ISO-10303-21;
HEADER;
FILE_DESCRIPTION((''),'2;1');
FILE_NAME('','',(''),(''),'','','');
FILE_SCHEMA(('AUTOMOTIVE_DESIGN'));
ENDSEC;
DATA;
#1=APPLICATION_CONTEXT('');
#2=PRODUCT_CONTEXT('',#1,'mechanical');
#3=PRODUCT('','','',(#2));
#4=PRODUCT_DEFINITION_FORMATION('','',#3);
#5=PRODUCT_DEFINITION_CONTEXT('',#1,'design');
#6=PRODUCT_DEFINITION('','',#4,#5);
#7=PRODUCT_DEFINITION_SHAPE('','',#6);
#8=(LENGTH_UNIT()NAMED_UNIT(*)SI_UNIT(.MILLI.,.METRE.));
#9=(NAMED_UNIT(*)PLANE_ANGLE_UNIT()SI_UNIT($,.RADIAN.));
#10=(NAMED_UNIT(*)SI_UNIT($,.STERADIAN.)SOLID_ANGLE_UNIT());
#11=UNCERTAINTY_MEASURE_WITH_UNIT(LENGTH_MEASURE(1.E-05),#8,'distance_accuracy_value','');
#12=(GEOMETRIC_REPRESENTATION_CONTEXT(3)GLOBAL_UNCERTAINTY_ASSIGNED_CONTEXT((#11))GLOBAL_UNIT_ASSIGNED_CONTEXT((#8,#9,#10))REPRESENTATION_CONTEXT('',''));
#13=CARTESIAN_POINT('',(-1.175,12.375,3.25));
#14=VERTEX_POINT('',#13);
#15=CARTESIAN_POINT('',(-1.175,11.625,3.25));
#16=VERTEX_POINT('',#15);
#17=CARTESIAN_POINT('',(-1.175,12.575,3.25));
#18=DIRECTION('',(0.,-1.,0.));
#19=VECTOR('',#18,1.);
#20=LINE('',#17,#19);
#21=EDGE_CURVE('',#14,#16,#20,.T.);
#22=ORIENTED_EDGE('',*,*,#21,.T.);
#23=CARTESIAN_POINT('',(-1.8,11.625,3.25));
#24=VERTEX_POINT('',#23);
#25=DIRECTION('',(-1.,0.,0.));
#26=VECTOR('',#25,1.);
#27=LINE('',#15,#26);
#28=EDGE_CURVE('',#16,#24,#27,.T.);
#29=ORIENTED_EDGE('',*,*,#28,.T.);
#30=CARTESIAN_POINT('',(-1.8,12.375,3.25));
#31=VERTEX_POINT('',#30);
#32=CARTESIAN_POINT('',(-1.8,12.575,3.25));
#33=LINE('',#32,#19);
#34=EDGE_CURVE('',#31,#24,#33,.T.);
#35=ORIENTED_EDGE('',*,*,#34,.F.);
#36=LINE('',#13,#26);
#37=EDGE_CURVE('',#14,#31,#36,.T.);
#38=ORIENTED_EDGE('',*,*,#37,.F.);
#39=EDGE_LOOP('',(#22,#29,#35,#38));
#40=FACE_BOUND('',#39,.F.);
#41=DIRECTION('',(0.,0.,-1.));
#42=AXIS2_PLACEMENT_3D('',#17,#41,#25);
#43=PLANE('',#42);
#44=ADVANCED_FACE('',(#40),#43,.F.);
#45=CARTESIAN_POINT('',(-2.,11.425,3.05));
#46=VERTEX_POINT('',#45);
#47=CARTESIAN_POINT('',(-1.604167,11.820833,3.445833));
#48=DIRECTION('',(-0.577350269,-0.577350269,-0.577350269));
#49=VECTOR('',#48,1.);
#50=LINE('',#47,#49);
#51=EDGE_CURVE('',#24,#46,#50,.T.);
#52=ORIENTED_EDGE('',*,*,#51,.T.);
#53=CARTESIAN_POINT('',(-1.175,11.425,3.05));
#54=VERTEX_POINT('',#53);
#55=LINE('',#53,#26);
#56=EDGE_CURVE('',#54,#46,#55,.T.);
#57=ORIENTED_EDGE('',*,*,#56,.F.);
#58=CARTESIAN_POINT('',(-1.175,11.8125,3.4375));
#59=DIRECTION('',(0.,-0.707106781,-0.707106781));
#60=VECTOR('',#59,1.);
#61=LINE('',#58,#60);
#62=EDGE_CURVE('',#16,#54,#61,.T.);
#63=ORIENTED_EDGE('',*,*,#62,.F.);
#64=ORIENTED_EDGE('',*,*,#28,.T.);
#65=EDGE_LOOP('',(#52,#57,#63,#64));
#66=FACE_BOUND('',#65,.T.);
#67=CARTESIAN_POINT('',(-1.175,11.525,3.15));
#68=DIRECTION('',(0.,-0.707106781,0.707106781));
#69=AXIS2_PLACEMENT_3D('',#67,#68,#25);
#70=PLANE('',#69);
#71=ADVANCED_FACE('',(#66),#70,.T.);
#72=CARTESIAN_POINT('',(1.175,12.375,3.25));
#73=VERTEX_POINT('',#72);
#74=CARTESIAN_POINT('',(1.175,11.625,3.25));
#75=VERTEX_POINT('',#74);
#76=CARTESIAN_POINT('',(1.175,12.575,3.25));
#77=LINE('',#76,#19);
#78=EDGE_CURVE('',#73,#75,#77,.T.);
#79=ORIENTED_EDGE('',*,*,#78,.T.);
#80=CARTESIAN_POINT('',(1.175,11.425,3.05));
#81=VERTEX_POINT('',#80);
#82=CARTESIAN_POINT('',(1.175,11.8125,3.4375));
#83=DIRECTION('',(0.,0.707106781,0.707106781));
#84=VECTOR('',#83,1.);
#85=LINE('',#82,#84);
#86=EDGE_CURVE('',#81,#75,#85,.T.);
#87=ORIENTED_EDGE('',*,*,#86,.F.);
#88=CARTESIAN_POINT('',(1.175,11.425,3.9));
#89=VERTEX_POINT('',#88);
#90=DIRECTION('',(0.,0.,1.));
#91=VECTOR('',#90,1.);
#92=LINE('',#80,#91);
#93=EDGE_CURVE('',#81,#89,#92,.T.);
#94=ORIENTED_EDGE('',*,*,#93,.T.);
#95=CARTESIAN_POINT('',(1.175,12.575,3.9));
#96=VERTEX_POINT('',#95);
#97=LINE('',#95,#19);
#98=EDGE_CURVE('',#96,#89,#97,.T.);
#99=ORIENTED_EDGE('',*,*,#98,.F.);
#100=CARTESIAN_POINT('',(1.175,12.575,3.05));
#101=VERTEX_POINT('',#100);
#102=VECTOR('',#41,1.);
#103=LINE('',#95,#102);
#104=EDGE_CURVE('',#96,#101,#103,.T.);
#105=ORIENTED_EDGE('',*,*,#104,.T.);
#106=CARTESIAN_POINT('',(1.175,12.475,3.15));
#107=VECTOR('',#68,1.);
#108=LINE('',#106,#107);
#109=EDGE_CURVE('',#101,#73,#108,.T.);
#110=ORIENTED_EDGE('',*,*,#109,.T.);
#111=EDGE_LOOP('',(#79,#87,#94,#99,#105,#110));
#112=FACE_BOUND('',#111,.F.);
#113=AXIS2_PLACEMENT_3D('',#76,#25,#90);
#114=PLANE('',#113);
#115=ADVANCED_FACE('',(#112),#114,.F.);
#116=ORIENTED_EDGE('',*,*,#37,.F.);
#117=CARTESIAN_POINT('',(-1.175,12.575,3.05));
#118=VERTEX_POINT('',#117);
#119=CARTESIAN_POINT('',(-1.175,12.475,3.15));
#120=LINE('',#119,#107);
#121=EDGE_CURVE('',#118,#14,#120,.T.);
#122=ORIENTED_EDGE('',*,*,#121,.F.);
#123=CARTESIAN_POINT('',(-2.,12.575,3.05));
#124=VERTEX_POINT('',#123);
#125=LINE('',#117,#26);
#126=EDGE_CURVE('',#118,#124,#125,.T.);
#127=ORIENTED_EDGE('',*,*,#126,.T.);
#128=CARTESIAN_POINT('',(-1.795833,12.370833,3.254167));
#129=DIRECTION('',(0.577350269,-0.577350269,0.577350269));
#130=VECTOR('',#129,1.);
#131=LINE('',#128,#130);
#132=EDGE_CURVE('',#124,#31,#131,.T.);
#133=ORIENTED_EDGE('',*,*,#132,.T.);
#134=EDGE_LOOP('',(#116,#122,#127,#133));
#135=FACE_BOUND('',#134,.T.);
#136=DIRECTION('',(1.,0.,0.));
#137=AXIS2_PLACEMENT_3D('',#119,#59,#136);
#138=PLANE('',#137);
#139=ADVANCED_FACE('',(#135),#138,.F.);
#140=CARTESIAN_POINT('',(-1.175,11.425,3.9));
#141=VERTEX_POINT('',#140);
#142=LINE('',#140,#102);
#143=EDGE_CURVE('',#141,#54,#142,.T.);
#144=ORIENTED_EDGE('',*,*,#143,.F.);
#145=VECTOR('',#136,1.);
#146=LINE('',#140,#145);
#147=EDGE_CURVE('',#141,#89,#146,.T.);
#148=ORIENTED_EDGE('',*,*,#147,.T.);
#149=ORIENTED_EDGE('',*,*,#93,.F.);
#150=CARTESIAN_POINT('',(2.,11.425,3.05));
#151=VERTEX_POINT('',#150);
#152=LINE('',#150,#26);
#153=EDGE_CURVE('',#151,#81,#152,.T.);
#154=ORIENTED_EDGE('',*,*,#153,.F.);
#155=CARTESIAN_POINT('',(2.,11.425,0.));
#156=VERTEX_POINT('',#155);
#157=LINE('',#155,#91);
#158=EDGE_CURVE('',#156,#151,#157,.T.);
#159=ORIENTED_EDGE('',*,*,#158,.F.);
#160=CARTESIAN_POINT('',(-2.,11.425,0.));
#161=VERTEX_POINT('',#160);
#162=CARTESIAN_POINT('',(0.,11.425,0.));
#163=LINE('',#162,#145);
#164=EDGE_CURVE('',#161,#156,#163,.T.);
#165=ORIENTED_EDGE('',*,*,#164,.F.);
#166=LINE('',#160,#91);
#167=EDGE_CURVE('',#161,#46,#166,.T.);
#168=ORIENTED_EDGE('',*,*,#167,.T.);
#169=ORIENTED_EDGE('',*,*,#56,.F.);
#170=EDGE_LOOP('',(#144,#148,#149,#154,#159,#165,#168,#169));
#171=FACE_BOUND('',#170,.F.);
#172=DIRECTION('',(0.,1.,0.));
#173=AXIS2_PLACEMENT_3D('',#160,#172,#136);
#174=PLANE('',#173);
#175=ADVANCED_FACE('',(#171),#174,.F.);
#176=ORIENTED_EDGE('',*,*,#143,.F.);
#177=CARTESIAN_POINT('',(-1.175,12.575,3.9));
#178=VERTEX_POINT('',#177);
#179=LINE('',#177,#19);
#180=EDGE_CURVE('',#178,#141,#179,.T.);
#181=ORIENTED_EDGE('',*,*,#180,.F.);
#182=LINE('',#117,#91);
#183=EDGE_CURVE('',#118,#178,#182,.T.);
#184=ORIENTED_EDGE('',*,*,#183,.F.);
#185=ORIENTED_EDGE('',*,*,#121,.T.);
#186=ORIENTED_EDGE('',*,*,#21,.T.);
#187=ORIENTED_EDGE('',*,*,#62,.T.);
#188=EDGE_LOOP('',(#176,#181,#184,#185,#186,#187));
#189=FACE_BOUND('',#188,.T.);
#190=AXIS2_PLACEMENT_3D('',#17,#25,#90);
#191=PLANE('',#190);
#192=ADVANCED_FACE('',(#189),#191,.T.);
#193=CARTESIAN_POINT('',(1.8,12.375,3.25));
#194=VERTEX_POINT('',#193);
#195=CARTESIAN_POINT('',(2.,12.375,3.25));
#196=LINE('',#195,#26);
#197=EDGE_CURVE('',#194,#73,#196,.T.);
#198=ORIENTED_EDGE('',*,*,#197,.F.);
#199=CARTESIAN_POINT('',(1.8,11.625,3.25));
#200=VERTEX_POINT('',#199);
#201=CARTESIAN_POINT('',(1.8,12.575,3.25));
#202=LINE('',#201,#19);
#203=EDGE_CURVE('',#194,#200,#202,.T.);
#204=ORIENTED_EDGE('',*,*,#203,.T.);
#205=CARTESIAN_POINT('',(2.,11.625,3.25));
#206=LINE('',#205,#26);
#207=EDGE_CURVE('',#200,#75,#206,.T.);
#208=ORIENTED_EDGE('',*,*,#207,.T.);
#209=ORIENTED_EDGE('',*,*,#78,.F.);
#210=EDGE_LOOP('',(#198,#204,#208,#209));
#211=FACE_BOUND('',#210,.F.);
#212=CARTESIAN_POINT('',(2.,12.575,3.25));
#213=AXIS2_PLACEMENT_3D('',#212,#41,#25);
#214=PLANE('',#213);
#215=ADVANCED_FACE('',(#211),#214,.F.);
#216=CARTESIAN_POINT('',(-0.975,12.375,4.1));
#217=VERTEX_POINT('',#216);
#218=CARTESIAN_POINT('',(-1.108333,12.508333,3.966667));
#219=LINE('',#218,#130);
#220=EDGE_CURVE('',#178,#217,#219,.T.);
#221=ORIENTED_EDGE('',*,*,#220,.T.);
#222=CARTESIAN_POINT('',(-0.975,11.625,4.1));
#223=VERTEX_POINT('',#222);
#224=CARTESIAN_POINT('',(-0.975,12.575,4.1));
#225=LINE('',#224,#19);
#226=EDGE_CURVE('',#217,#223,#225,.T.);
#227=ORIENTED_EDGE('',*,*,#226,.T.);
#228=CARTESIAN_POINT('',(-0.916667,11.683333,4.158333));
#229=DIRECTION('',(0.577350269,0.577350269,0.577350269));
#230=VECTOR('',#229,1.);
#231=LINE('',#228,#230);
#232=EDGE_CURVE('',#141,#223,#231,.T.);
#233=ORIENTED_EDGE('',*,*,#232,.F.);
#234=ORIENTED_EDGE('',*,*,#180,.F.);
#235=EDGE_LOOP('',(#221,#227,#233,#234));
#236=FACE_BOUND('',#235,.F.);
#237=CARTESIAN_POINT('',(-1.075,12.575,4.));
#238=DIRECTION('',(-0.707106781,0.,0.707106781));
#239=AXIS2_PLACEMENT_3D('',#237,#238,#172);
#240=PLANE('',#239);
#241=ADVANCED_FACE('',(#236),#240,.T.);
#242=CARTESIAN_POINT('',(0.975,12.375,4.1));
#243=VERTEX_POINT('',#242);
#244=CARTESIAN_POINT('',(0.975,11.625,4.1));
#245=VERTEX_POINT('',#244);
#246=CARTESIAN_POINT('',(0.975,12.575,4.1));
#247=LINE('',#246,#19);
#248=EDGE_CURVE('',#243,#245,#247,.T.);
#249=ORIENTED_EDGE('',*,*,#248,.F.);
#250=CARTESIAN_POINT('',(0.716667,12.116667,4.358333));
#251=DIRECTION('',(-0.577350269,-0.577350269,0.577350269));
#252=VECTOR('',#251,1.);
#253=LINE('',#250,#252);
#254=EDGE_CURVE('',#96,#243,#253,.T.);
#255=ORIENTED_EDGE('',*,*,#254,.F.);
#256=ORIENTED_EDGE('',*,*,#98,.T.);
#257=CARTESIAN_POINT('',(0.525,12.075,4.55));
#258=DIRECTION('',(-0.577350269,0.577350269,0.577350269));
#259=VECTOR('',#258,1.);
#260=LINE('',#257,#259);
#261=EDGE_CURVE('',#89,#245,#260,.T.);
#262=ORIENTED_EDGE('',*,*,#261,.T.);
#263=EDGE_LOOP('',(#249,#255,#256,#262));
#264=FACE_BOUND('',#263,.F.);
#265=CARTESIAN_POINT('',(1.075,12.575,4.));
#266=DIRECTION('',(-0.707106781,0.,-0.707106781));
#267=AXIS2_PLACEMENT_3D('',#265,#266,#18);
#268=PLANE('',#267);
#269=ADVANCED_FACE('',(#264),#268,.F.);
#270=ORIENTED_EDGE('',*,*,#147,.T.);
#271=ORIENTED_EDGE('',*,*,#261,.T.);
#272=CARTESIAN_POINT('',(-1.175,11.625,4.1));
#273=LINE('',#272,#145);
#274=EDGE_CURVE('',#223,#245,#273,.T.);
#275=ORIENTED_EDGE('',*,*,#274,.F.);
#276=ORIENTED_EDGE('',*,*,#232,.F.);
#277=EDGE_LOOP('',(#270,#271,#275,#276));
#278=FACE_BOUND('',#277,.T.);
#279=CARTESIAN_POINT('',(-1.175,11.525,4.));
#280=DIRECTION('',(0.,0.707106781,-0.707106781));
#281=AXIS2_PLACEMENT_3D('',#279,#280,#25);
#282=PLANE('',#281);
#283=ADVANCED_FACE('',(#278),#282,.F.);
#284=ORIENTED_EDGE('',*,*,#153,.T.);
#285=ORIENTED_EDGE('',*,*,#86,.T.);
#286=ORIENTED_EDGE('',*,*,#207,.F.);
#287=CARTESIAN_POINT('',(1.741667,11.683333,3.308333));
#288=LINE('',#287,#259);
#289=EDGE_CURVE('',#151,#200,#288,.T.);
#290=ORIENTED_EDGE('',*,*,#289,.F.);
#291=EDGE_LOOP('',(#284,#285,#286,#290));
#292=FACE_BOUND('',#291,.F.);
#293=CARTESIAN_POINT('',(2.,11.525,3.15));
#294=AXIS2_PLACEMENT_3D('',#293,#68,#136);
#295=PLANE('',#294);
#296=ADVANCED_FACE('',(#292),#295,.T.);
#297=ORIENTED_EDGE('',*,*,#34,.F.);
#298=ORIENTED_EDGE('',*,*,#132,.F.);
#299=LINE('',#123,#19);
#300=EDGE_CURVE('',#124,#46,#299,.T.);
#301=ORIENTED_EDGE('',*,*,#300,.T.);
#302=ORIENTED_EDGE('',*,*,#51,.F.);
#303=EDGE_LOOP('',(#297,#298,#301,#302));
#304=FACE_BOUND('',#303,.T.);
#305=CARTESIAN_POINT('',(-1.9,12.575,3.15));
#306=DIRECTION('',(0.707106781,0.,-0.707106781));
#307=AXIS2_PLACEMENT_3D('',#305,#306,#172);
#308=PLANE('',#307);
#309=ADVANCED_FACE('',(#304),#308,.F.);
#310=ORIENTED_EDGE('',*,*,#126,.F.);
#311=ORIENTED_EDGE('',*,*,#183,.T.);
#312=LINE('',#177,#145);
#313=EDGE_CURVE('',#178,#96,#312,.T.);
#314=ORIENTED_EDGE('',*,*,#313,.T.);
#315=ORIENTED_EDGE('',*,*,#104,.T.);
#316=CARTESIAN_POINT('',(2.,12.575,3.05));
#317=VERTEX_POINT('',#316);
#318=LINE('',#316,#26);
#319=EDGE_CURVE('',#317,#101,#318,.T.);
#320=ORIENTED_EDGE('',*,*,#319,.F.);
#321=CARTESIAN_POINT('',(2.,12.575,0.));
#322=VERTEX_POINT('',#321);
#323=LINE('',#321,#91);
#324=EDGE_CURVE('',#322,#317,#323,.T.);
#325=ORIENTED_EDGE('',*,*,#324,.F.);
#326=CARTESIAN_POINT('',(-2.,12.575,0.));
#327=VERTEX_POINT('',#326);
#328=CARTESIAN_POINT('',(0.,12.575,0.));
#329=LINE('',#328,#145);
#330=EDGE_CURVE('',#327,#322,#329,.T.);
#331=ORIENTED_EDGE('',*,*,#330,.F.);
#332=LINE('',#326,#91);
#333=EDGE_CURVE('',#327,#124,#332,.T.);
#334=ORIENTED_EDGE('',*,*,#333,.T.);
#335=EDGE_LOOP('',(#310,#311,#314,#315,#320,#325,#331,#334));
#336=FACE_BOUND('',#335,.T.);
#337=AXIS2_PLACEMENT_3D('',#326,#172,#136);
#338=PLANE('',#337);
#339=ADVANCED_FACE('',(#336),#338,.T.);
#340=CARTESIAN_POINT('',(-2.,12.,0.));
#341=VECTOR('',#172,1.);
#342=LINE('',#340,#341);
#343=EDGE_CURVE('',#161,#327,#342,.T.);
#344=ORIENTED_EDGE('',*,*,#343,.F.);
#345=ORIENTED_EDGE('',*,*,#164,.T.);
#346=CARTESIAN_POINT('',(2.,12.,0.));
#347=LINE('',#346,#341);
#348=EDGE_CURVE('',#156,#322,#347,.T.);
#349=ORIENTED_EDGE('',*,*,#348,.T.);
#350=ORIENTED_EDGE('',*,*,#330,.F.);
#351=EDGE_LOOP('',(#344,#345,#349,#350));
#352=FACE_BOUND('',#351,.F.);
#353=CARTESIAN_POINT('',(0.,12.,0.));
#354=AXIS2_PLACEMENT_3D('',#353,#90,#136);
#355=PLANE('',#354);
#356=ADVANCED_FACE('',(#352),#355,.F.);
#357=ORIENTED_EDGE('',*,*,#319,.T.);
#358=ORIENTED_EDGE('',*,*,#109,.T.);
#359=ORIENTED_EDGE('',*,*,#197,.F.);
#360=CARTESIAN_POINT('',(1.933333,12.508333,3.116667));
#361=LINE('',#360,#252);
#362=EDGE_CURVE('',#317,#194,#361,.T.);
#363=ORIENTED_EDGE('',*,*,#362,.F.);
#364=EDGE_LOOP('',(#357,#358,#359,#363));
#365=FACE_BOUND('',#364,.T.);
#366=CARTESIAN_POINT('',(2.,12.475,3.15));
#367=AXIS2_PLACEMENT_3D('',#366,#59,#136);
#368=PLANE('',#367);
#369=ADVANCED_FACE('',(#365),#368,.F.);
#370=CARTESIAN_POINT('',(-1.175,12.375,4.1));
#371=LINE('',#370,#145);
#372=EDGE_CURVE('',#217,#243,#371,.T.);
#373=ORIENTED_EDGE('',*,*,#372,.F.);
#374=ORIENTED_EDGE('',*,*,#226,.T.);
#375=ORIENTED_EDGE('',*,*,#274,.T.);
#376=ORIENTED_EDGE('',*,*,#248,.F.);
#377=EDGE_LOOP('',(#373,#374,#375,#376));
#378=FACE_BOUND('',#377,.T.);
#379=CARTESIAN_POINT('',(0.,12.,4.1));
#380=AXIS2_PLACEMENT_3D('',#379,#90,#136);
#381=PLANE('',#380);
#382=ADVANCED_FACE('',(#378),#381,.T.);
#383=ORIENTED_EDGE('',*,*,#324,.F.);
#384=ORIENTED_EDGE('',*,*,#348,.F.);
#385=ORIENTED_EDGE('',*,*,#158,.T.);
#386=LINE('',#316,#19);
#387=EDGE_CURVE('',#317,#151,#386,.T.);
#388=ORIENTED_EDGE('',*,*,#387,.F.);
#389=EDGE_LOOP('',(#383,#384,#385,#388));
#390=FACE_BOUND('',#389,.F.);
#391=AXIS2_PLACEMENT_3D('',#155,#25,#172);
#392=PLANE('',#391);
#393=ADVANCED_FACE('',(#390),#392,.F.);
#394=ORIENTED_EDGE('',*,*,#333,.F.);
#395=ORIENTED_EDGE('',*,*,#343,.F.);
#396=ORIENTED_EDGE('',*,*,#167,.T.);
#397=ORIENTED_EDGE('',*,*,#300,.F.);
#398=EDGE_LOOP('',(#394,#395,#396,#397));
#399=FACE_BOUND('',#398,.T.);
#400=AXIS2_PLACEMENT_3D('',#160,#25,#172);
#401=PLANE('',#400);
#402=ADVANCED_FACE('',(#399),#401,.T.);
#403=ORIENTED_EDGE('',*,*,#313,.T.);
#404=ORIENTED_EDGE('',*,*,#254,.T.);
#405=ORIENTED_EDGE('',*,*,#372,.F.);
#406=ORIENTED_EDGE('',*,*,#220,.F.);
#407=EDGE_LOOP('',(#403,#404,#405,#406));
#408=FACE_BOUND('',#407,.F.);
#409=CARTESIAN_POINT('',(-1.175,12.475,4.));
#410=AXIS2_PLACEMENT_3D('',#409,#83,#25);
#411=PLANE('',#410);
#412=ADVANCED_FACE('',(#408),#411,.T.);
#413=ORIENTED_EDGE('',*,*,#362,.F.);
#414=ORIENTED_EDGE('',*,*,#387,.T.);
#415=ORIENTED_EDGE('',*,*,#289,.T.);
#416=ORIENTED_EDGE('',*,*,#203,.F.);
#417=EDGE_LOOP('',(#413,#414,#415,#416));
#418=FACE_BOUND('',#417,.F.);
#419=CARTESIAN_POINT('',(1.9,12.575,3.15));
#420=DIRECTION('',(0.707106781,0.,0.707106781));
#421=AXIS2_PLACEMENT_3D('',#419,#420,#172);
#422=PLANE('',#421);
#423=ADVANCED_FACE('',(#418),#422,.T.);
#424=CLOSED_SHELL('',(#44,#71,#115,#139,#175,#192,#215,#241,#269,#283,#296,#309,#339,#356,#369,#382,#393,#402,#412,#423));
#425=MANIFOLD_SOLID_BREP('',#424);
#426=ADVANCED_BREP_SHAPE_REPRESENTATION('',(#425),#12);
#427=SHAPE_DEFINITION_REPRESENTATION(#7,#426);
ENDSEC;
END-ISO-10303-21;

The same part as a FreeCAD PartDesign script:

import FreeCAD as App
import Part
import Sketcher
from FreeCAD import Vector
Q = App.Units.Quantity


def edges_at(feature, points):
    """Names of the edges that pass closest to the given points."""
    edges = feature.Shape.Edges
    near = lambda p: min(range(len(edges)), key=lambda i: edges[i].distToShape(Part.Vertex(*p))[0])
    return sorted({f"Edge{near(p) + 1}" for p in points})

doc = App.newDocument("Part")
body = doc.addObject("PartDesign::Body", "Body")

sketch1 = body.newObject("Sketcher::SketchObject", "Sketch")
sketch1.AttachmentSupport = (doc.getObject("XY_Plane"), [""])
sketch1.MapMode = "FlatFace"
sketch1.addGeometry([
    Part.LineSegment(Vector(-2, 0.6, 0), Vector(-2, -0.6, 0)),
    Part.LineSegment(Vector(-2, -0.6, 0), Vector(2, -0.6, 0)),
    Part.LineSegment(Vector(2, -0.6, 0), Vector(2, 0.6, 0)),
    Part.LineSegment(Vector(2, 0.6, 0), Vector(-2, 0.6, 0)),
], False)
sketch1.addConstraint([
    Sketcher.Constraint("Coincident", 0, 2, 1, 1),
    Sketcher.Constraint("Coincident", 1, 2, 2, 1),
    Sketcher.Constraint("Coincident", 2, 2, 3, 1),
    Sketcher.Constraint("Coincident", 3, 2, 0, 1),
    Sketcher.Constraint("Vertical", 0),
    Sketcher.Constraint("Horizontal", 1),
    Sketcher.Constraint("Vertical", 2),
    Sketcher.Constraint("Horizontal", 3),
    Sketcher.Constraint("Symmetric", 0, 2, 2, 2, -1, 1),
    Sketcher.Constraint("DistanceX", 1, 1, 1, 2, Q("4 mm")),
    Sketcher.Constraint("DistanceY", 0, 2, 0, 1, Q("1.15 mm")),
])
pad1 = body.newObject("PartDesign::Pad", "Pad")
pad1.Profile = sketch1
pad1.Length = 4.1

sketch2 = body.newObject("Sketcher::SketchObject", "Sketch001")
sketch2.AttachmentSupport = (doc.getObject("XZ_Plane"), [""])
sketch2.MapMode = "FlatFace"
sketch2.AttachmentOffset = App.Placement(Vector(0, 0, -0.575), App.Rotation())
sketch2.addGeometry([
    Part.LineSegment(Vector(2, 4.1, 0), Vector(2, 3.2, 0)),
    Part.LineSegment(Vector(2, 3.2, 0), Vector(1.2, 3.2, 0)),
    Part.LineSegment(Vector(1.2, 3.2, 0), Vector(1.2, 4.1, 0)),
    Part.LineSegment(Vector(1.2, 4.1, 0), Vector(2, 4.1, 0)),
    Part.LineSegment(Vector(-1.2, 4.1, 0), Vector(-1.2, 3.2, 0)),
    Part.LineSegment(Vector(-1.2, 3.2, 0), Vector(-2, 3.2, 0)),
    Part.LineSegment(Vector(-2, 3.2, 0), Vector(-2, 4.1, 0)),
    Part.LineSegment(Vector(-2, 4.1, 0), Vector(-1.2, 4.1, 0)),
], False)
sketch2.addConstraint([
    Sketcher.Constraint("Coincident", 0, 2, 1, 1),
    Sketcher.Constraint("Coincident", 1, 2, 2, 1),
    Sketcher.Constraint("Coincident", 2, 2, 3, 1),
    Sketcher.Constraint("Coincident", 3, 2, 0, 1),
    Sketcher.Constraint("Coincident", 4, 2, 5, 1),
    Sketcher.Constraint("Coincident", 5, 2, 6, 1),
    Sketcher.Constraint("Coincident", 6, 2, 7, 1),
    Sketcher.Constraint("Coincident", 7, 2, 4, 1),
    Sketcher.Constraint("Vertical", 0),
    Sketcher.Constraint("Horizontal", 1),
    Sketcher.Constraint("Vertical", 2),
    Sketcher.Constraint("Horizontal", 3),
    Sketcher.Constraint("Vertical", 4),
    Sketcher.Constraint("Horizontal", 5),
    Sketcher.Constraint("Vertical", 6),
    Sketcher.Constraint("Horizontal", 7),
    Sketcher.Constraint("Symmetric", 1, 2, 4, 2, -2),
    Sketcher.Constraint("Symmetric", 3, 2, 6, 2, -2),
    Sketcher.Constraint("DistanceX", -1, 1, 0, 2, Q("2 mm")),
    Sketcher.Constraint("DistanceY", 0, 2, 0, 1, Q("0.85 mm")),
    Sketcher.Constraint("DistanceY", -1, 1, 2, 2, Q("4.1 mm")),
    Sketcher.Constraint("DistanceX", 1, 2, 1, 1, Q("0.825 mm")),
])
pocket1 = body.newObject("PartDesign::Pocket", "Pocket")
pocket1.Profile = sketch2
pocket1.Length = 5
pocket1.Reversed = True
doc.recompute()

chamfer = body.newObject("PartDesign::Chamfer", "Chamfer")
chamfer.Base = (pocket1, edges_at(pocket1, [
    (0, 0.575, 4.1),
    (0, -0.575, 4.1),
    (1.587, 0.575, 3.25),
    (-1.587, 0.575, 3.25),
    (-1.587, -0.575, 3.25),
    (1.587, -0.575, 3.25),
    (2, 0, 3.25),
    (-2, 0, 3.25),
    (1.175, 0, 4.1),
    (-1.175, 0, 4.1),
]))
chamfer.Size = 0.2
body2 = doc.addObject("PartDesign::Body", "Body001")
doc.recompute()

body.Placement = App.Placement(Vector(0, 12, 0), App.Rotation(Vector(0, 0, 1), 0))
boolean = body2.newObject("PartDesign::Boolean", "Boolean")
boolean.Type = "Fuse"
boolean.addObjects([body])

doc.recompute()
